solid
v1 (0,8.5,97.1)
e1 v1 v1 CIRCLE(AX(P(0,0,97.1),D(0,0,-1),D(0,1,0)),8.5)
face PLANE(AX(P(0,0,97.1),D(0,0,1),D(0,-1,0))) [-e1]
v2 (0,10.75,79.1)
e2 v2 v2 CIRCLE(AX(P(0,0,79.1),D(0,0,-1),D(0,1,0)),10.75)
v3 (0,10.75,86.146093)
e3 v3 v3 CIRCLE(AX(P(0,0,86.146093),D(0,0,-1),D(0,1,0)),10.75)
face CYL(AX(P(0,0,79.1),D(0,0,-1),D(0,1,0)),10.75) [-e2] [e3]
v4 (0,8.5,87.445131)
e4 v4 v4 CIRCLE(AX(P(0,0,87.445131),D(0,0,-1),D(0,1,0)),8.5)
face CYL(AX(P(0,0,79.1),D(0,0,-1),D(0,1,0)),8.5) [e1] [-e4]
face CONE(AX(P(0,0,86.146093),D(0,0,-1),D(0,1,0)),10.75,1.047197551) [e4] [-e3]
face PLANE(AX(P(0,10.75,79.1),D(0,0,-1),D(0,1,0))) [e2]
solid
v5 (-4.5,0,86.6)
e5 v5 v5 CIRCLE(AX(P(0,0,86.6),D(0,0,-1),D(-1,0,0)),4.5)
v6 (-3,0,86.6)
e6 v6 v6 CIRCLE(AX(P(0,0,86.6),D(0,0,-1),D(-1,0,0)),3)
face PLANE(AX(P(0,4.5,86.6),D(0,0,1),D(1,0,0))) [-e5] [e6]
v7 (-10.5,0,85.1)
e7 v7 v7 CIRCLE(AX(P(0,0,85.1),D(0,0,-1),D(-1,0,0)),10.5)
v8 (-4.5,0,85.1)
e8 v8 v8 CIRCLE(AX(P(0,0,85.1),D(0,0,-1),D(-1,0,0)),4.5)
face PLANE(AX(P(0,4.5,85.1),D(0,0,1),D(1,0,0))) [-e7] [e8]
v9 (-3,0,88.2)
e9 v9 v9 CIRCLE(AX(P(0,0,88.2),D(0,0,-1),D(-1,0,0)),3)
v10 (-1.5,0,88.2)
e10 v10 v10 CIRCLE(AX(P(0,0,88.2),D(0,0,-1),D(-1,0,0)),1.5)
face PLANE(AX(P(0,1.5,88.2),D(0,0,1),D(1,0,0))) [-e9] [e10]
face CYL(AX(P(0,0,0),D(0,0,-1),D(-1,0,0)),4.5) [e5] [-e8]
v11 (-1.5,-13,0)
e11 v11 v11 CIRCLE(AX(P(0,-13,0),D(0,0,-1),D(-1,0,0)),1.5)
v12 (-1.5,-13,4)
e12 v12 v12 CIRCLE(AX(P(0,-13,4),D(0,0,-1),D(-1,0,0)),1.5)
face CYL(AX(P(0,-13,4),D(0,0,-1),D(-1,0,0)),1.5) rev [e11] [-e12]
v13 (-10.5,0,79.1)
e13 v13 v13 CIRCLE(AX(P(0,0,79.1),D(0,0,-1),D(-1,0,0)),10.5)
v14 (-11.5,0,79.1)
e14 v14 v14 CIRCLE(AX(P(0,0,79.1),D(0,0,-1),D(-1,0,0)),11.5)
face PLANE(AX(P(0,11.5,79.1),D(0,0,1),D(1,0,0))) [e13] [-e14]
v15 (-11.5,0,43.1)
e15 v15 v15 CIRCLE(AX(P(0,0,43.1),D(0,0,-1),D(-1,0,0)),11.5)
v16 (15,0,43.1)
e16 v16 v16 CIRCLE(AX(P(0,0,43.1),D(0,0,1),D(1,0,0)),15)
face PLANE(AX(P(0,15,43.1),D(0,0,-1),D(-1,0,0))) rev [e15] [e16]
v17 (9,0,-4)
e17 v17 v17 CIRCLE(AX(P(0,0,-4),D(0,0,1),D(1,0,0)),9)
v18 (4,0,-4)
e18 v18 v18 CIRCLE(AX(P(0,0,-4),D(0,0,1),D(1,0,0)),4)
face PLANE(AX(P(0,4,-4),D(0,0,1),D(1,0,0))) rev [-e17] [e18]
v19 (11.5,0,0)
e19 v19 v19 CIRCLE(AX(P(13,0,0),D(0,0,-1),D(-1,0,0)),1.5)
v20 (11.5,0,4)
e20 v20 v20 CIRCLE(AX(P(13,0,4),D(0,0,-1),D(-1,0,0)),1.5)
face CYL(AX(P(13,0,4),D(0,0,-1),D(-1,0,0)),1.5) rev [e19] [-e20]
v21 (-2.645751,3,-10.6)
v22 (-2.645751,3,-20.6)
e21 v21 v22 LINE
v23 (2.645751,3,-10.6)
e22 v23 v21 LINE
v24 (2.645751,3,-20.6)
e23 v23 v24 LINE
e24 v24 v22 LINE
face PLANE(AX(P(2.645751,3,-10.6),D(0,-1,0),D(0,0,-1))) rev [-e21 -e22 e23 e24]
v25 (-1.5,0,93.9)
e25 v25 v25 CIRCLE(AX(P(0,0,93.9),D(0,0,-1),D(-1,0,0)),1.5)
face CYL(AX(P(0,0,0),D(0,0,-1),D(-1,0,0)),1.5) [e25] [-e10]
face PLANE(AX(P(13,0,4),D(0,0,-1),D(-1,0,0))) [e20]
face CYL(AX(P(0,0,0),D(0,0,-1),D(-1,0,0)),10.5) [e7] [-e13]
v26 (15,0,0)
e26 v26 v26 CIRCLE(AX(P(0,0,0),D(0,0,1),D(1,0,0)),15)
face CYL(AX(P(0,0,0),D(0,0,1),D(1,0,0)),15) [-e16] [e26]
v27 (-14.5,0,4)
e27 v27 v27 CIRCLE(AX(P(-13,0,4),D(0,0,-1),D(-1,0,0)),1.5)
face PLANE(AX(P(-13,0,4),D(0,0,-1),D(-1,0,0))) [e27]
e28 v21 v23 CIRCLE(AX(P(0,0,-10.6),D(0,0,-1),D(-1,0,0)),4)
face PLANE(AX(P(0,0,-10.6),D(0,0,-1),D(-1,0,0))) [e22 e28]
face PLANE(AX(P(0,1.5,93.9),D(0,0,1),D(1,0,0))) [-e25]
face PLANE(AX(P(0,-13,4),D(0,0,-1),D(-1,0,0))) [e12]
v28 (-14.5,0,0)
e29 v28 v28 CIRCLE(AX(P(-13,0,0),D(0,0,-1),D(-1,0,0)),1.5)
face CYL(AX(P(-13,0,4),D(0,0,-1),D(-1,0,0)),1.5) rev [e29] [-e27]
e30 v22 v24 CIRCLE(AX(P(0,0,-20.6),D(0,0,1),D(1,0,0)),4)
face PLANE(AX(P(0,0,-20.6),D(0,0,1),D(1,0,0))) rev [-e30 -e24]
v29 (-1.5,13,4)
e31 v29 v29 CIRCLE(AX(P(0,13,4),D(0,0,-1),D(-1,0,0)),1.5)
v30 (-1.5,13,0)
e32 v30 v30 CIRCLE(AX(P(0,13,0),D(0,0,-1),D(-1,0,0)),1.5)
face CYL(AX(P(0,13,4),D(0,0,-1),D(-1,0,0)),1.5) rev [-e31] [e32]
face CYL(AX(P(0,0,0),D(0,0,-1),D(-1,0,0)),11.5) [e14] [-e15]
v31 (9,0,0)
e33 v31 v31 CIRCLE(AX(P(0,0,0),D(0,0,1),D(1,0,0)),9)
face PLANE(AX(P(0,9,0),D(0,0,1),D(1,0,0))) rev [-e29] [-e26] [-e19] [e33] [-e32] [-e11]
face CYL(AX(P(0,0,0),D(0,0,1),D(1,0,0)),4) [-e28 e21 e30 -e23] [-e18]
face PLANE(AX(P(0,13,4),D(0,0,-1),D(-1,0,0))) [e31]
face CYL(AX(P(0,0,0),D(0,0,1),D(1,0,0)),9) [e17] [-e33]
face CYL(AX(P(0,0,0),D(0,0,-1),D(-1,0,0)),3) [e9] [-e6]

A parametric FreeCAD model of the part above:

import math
import FreeCAD as App
import Part
import Sketcher
Q = App.Units.Quantity

doc = App.newDocument("Part")
body = doc.addObject("PartDesign::Body", "Body")

# Sketch on YZ plane
sketch1 = body.newObject("Sketcher::SketchObject", "Sketch")
sketch1.AttachmentSupport = (doc.getObject("YZ_Plane"), [""])
sketch1.MapMode = "FlatFace"
sketch1.addGeometry([
    Part.LineSegment(App.Vector(0, -20.6, 0), App.Vector(4, -20.6, 0)),  # 0
    Part.LineSegment(App.Vector(4, -20.6, 0), App.Vector(4, -4, 0)),  # 1
    Part.LineSegment(App.Vector(4, -4, 0), App.Vector(9, -4, 0)),  # 2
    Part.LineSegment(App.Vector(9, -4, 0), App.Vector(9, 0, 0)),  # 3
    Part.LineSegment(App.Vector(9, 0, 0), App.Vector(15, 0, 0)),  # 4
    Part.LineSegment(App.Vector(15, 0, 0), App.Vector(15, 43.1, 0)),  # 5
    Part.LineSegment(App.Vector(15, 43.1, 0), App.Vector(0, 43.1, 0)),  # 6
    Part.LineSegment(App.Vector(0, 43.1, 0), App.Vector(0, -20.6, 0)),  # 7
], False)
sketch1.addConstraint([
    Sketcher.Constraint("Coincident", 0, 2, 1, 1),
    Sketcher.Constraint("Coincident", 1, 2, 2, 1),
    Sketcher.Constraint("Coincident", 2, 2, 3, 1),
    Sketcher.Constraint("Coincident", 3, 2, 4, 1),
    Sketcher.Constraint("Coincident", 4, 2, 5, 1),
    Sketcher.Constraint("Coincident", 5, 2, 6, 1),
    Sketcher.Constraint("Coincident", 6, 2, 7, 1),
    Sketcher.Constraint("Coincident", 7, 2, 0, 1),
    Sketcher.Constraint("Horizontal", 0),
    Sketcher.Constraint("Vertical", 1),
    Sketcher.Constraint("Horizontal", 2),
    Sketcher.Constraint("Vertical", 3),
    Sketcher.Constraint("Horizontal", 4),
    Sketcher.Constraint("Vertical", 5),
    Sketcher.Constraint("Horizontal", 6),
    Sketcher.Constraint("Vertical", 7),
    Sketcher.Constraint("PointOnObject", 3, 2, -1),
    Sketcher.Constraint("PointOnObject", 6, 2, -2),
    Sketcher.Constraint("Equal", 0, 3),
    Sketcher.Constraint("DistanceX", 0, 1, 0, 2, Q("4 mm")),
    Sketcher.Constraint("DistanceX", 2, 1, 2, 2, Q("5 mm")),
    Sketcher.Constraint("DistanceX", 4, 1, 4, 2, Q("6 mm")),
    Sketcher.Constraint("DistanceY", 1, 1, 1, 2, Q("16.6 mm")),
    Sketcher.Constraint("DistanceY", 5, 1, 5, 2, Q("43.1 mm")),
])
revolution = body.newObject("PartDesign::Revolution", "Revolution")
revolution.Profile = sketch1
revolution.ReferenceAxis = (sketch1, ["V_Axis"])
revolution.Angle = 360

# Sketch on XY plane
sketch2 = body.newObject("Sketcher::SketchObject", "Sketch001")
sketch2.AttachmentSupport = (doc.getObject("XY_Plane"), [""])
sketch2.MapMode = "FlatFace"
sketch2.AttachmentOffset = App.Placement(App.Vector(0, 0, -10.6), App.Rotation())
sketch2.addGeometry([
    Part.LineSegment(App.Vector(2.6, 3, 0), App.Vector(-2.6, 3, 0)),
    Part.ArcOfCircle(Part.Circle(App.Vector(0, 0, 0), App.Vector(0, 0, 1), 4), math.radians(49), math.radians(131)),
], False)
sketch2.addConstraint([
    Sketcher.Constraint("Coincident", 0, 1, 1, 1),
    Sketcher.Constraint("Coincident", 1, 2, 0, 2),
    Sketcher.Constraint("Horizontal", 0),
    Sketcher.Constraint("Coincident", 1, 3, -1, 1),
    Sketcher.Constraint("Radius", 1, Q("4 mm")),
    Sketcher.Constraint("DistanceY", -1, 1, 0, 1, Q("3 mm")),
])
pocket1 = body.newObject("PartDesign::Pocket", "Pocket")
pocket1.Profile = sketch2
pocket1.Length = 10

# Sketch on YZ plane
sketch3 = body.newObject("Sketcher::SketchObject", "Sketch002")
sketch3.AttachmentSupport = (doc.getObject("YZ_Plane"), [""])
sketch3.MapMode = "FlatFace"
sketch3.addGeometry([
    Part.LineSegment(App.Vector(11.5, 43.1, 0), App.Vector(11.5, 79.1, 0)),  # 0
    Part.LineSegment(App.Vector(11.5, 79.1, 0), App.Vector(10.5, 79.1, 0)),  # 1
    Part.LineSegment(App.Vector(10.5, 79.1, 0), App.Vector(10.5, 85.1, 0)),  # 2
    Part.LineSegment(App.Vector(10.5, 85.1, 0), App.Vector(4.5, 85.1, 0)),  # 3
    Part.LineSegment(App.Vector(4.5, 85.1, 0), App.Vector(4.5, 86.6, 0)),  # 4
    Part.LineSegment(App.Vector(4.5, 86.6, 0), App.Vector(3, 86.6, 0)),  # 5
    Part.LineSegment(App.Vector(3, 86.6, 0), App.Vector(3, 88.2, 0)),  # 6
    Part.LineSegment(App.Vector(3, 88.2, 0), App.Vector(1.5, 88.2, 0)),  # 7
    Part.LineSegment(App.Vector(1.5, 88.2, 0), App.Vector(1.5, 93.9, 0)),  # 8
    Part.LineSegment(App.Vector(1.5, 93.9, 0), App.Vector(0, 93.9, 0)),  # 9
    Part.LineSegment(App.Vector(0, 93.9, 0), App.Vector(0, 43.1, 0)),  # 10
    Part.LineSegment(App.Vector(0, 43.1, 0), App.Vector(11.5, 43.1, 0)),  # 11
], False)
sketch3.addConstraint([
    Sketcher.Constraint("Coincident", 0, 2, 1, 1),
    Sketcher.Constraint("Coincident", 1, 2, 2, 1),
    Sketcher.Constraint("Coincident", 2, 2, 3, 1),
    Sketcher.Constraint("Coincident", 3, 2, 4, 1),
    Sketcher.Constraint("Coincident", 4, 2, 5, 1),
    Sketcher.Constraint("Coincident", 5, 2, 6, 1),
    Sketcher.Constraint("Coincident", 6, 2, 7, 1),
    Sketcher.Constraint("Coincident", 7, 2, 8, 1),
    Sketcher.Constraint("Coincident", 8, 2, 9, 1),
    Sketcher.Constraint("Coincident", 9, 2, 10, 1),
    Sketcher.Constraint("Coincident", 10, 2, 11, 1),
    Sketcher.Constraint("Coincident", 11, 2, 0, 1),
    Sketcher.Constraint("Vertical", 0),
    Sketcher.Constraint("Horizontal", 1),
    Sketcher.Constraint("Vertical", 2),
    Sketcher.Constraint("Horizontal", 3),
    Sketcher.Constraint("Vertical", 4),
    Sketcher.Constraint("Horizontal", 5),
    Sketcher.Constraint("Vertical", 6),
    Sketcher.Constraint("Horizontal", 7),
    Sketcher.Constraint("Vertical", 8),
    Sketcher.Constraint("Horizontal", 9),
    Sketcher.Constraint("Vertical", 10),
    Sketcher.Constraint("Horizontal", 11),
    Sketcher.Constraint("PointOnObject", 9, 2, -2),
    Sketcher.Constraint("Equal", 5, 7),
    Sketcher.Constraint("Equal", 7, 9),
    Sketcher.Constraint("Equal", 3, 2),
    Sketcher.Constraint("Equal", 9, 4),
    Sketcher.Constraint("DistanceX", 1, 2, 1, 1, Q("1 mm")),
    Sketcher.Constraint("DistanceX", 3, 2, 3, 1, Q("6 mm")),
    Sketcher.Constraint("DistanceY", 0, 1, 0, 2, Q("36 mm")),
    Sketcher.Constraint("DistanceX", 5, 2, 5, 1, Q("1.5 mm")),
    Sketcher.Constraint("DistanceY", 6, 1, 6, 2, Q("1.6 mm")),
    Sketcher.Constraint("DistanceY", 8, 1, 8, 2, Q("5.7 mm")),
    Sketcher.Constraint("DistanceY", -1, 1, 0, 2, Q("79.1 mm")),
])
revolution2 = body.newObject("PartDesign::Revolution", "Revolution001")
revolution2.Profile = sketch3
revolution2.ReferenceAxis = (sketch3, ["V_Axis"])
revolution2.Angle = 360

# Sketch on XY plane
sketch4 = body.newObject("Sketcher::SketchObject", "Sketch003")
sketch4.AttachmentSupport = (doc.getObject("XY_Plane"), [""])
sketch4.MapMode = "FlatFace"
sketch4.addGeometry([
    Part.Circle(App.Vector(0, 13, 0), App.Vector(0, 0, 1), 1.5),
    Part.Circle(App.Vector(-13, 0, 0), App.Vector(0, 0, 1), 1.5),
    Part.Circle(App.Vector(0, -13, 0), App.Vector(0, 0, 1), 1.5),
    Part.Circle(App.Vector(13, 0, 0), App.Vector(0, 0, 1), 1.5),
], False)
sketch4.addConstraint([
    Sketcher.Constraint("Equal", 0, 1),
    Sketcher.Constraint("Equal", 1, 2),
    Sketcher.Constraint("Equal", 2, 3),
    Sketcher.Constraint("Symmetric", 0, 3, 2, 3, -1, 1),
    Sketcher.Constraint("Symmetric", 1, 3, 3, 3, -1, 1),
    Sketcher.Constraint("PointOnObject", 0, 3, -2),
    Sketcher.Constraint("PointOnObject", 1, 3, -1),
    Sketcher.Constraint("Diameter", 0, Q("3 mm")),
    Sketcher.Constraint("DistanceY", -1, 1, 0, 3, Q("13 mm")),
    Sketcher.Constraint("DistanceX", 1, 3, -1, 1, Q("13 mm")),
])
pocket2 = body.newObject("PartDesign::Pocket", "Pocket001")
pocket2.Profile = sketch4
pocket2.Length = 4
pocket2.Reversed = True
body2 = doc.addObject("PartDesign::Body", "Body001")

# Sketch on YZ plane
sketch5 = body2.newObject("Sketcher::SketchObject", "Sketch004")
sketch5.AttachmentSupport = (doc.getObject("YZ_Plane001"), [""])
sketch5.MapMode = "FlatFace"
sketch5.addGeometry([
    Part.LineSegment(App.Vector(10.8, 79.1, 0), App.Vector(10.8, 86.1, 0)),  # 0
    Part.LineSegment(App.Vector(10.8, 86.1, 0), App.Vector(8.5, 87.4, 0)),  # 1
    Part.LineSegment(App.Vector(8.5, 87.4, 0), App.Vector(8.5, 97.1, 0)),  # 2
    Part.LineSegment(App.Vector(8.5, 97.1, 0), App.Vector(0, 97.1, 0)),  # 3
    Part.LineSegment(App.Vector(0, 97.1, 0), App.Vector(0, 79.1, 0)),  # 4
    Part.LineSegment(App.Vector(0, 79.1, 0), App.Vector(10.8, 79.1, 0)),  # 5
], False)
sketch5.addConstraint([
    Sketcher.Constraint("Coincident", 0, 2, 1, 1),
    Sketcher.Constraint("Coincident", 1, 2, 2, 1),
    Sketcher.Constraint("Coincident", 2, 2, 3, 1),
    Sketcher.Constraint("Coincident", 3, 2, 4, 1),
    Sketcher.Constraint("Coincident", 4, 2, 5, 1),
    Sketcher.Constraint("Coincident", 5, 2, 0, 1),
    Sketcher.Constraint("Vertical", 0),
    Sketcher.Constraint("Vertical", 2),
    Sketcher.Constraint("Horizontal", 3),
    Sketcher.Constraint("Vertical", 4),
    Sketcher.Constraint("Horizontal", 5),
    Sketcher.Constraint("PointOnObject", 3, 2, -2),
    Sketcher.Constraint("DistanceY", 4, 2, 4, 1, Q("18 mm")),
    Sketcher.Constraint("Angle", 1, Q("150 deg")),
    Sketcher.Constraint("DistanceX", 3, 2, 3, 1, Q("8.5 mm")),
    Sketcher.Constraint("DistanceX", 5, 1, 5, 2, Q("10.75 mm")),
    Sketcher.Constraint("DistanceY", -1, 1, 2, 2, Q("97.1 mm")),
    Sketcher.Constraint("DistanceY", 2, 1, 2, 2, Q("9.654869 mm")),
])
revolution3 = body2.newObject("PartDesign::Revolution", "Revolution002")
revolution3.Profile = sketch5
revolution3.ReferenceAxis = (sketch5, ["V_Axis"])
revolution3.Angle = 360

doc.recompute()
